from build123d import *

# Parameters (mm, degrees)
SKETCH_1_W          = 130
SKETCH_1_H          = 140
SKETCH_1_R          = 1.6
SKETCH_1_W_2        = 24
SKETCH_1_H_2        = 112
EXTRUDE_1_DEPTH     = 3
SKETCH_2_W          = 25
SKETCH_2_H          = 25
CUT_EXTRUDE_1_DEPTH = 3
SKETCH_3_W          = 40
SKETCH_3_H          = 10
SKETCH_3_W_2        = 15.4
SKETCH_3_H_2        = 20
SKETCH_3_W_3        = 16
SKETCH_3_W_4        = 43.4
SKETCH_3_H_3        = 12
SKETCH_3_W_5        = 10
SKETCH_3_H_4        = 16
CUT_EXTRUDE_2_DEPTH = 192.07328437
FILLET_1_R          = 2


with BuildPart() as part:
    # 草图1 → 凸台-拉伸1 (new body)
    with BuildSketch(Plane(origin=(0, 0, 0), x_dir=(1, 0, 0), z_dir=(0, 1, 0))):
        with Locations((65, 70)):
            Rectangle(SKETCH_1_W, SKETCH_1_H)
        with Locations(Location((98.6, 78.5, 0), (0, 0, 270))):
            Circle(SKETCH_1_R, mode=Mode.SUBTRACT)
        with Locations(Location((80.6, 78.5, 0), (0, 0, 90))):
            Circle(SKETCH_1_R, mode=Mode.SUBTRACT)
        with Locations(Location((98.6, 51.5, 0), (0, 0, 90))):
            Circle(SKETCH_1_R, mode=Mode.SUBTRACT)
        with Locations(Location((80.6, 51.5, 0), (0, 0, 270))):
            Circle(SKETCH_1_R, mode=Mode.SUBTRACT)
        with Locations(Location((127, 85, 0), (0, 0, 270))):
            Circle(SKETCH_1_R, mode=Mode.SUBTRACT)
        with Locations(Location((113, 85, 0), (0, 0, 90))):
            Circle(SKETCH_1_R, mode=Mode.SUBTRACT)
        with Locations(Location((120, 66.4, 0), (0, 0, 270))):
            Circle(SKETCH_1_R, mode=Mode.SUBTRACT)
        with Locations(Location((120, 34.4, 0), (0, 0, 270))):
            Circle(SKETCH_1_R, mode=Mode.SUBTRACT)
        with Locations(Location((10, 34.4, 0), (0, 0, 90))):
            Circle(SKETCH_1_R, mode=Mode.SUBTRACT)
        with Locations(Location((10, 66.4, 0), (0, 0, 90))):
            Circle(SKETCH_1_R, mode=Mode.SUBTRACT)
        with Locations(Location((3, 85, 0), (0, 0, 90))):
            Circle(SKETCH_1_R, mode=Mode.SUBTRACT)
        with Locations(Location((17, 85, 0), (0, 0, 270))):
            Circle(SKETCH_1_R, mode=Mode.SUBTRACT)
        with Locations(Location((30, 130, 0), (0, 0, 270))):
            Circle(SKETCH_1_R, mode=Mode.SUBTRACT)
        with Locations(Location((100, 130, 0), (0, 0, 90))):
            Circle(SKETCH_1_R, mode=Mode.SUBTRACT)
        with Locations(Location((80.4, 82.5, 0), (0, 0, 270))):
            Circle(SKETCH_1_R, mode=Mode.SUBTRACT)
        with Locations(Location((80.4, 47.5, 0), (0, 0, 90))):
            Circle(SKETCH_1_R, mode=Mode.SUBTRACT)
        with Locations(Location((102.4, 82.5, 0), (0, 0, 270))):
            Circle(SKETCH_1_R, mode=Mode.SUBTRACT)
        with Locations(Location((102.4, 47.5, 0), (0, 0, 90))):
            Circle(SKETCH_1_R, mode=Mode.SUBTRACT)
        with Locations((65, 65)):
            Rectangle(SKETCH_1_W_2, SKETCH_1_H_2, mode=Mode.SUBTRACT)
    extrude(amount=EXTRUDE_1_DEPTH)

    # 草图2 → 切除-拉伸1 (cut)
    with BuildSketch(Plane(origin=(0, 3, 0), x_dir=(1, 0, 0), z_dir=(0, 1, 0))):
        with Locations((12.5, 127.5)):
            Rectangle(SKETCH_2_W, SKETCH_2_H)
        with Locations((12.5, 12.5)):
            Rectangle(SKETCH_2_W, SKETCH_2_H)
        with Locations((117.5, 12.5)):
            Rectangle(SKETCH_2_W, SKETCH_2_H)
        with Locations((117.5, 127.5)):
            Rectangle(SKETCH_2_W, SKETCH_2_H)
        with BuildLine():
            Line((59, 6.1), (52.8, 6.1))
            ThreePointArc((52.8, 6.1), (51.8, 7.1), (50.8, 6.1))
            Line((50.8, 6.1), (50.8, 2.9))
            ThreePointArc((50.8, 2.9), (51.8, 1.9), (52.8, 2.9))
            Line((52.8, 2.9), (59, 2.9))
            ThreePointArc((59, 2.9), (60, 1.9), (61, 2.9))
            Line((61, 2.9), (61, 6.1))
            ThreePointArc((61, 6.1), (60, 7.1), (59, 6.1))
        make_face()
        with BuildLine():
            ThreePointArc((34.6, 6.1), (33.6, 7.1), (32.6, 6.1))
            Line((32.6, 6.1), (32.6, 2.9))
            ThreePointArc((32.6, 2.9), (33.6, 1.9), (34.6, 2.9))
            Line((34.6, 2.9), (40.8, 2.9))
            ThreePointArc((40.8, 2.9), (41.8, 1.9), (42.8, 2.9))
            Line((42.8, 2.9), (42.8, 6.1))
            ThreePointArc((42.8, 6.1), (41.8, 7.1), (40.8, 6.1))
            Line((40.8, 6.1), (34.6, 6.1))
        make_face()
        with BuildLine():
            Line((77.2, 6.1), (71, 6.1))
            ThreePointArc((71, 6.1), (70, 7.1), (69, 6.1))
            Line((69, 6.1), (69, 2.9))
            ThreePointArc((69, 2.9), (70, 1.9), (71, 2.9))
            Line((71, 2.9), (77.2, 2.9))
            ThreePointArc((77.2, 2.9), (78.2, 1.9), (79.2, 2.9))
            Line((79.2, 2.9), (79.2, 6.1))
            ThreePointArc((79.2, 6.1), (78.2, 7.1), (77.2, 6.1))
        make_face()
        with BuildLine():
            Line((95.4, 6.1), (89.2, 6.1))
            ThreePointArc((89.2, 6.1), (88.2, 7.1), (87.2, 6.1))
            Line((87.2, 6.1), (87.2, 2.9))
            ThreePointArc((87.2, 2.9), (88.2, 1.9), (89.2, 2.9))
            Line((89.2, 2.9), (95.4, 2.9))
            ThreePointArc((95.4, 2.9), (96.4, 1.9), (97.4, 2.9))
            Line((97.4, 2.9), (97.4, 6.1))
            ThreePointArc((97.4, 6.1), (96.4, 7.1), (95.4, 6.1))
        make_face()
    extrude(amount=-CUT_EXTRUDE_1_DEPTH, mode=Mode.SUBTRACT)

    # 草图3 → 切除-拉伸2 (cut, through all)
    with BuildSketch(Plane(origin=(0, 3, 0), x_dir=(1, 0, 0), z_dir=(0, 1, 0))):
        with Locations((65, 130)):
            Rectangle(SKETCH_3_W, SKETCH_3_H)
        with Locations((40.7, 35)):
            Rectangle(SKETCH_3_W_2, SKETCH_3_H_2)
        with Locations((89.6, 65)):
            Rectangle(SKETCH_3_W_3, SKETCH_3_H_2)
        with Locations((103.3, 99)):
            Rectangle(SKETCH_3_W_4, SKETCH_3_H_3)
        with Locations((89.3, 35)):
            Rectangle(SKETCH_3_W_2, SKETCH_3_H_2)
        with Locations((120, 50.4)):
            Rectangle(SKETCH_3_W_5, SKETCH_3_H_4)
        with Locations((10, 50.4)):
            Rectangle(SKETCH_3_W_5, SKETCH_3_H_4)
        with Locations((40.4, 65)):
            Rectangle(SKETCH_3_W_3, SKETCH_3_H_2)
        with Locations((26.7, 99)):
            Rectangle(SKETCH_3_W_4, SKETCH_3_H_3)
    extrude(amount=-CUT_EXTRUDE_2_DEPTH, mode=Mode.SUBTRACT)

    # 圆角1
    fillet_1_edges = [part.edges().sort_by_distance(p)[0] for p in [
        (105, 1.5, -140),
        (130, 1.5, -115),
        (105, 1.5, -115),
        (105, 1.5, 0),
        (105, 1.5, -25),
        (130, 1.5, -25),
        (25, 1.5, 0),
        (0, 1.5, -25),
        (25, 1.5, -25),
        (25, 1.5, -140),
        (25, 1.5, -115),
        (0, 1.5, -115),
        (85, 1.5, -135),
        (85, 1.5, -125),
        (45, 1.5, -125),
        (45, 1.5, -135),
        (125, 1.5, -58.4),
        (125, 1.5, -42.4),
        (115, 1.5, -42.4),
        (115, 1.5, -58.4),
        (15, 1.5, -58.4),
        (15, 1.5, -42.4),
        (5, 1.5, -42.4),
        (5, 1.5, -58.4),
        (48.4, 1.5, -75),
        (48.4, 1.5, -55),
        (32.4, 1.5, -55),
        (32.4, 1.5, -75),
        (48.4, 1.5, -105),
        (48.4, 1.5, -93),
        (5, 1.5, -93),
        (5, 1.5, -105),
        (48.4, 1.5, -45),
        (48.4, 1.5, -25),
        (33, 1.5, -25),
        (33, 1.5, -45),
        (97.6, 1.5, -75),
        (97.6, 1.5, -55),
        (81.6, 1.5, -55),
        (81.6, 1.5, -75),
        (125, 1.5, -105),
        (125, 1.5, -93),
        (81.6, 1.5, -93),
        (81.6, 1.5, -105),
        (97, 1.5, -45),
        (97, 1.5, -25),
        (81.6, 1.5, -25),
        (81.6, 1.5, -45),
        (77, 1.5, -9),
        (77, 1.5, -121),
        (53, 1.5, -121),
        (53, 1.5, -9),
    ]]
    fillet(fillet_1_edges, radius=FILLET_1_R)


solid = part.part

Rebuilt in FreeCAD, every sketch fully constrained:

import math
import FreeCAD as App
import Part
import Sketcher
Q = App.Units.Quantity


def edges_at(feature, points):
    """Names of the edges that pass closest to the given points."""
    edges = feature.Shape.Edges
    near = lambda p: min(range(len(edges)), key=lambda i: edges[i].distToShape(Part.Vertex(*p))[0])
    return sorted({f"Edge{near(p) + 1}" for p in points})


def add_polygon(sketch, points):
    """Adds a closed chain of lines whose ends are joined by coincident constraints."""
    first, n = sketch.GeometryCount, len(points)
    for a, b in zip(points, points[1:] + points[:1]):
        sketch.addGeometry(Part.LineSegment(App.Vector(*a, 0), App.Vector(*b, 0)), False)
    for i in range(n):
        sketch.addConstraint(Sketcher.Constraint("Coincident", first + i, 2, first + (i + 1) % n, 1))

doc = App.newDocument("Part")
params = doc.addObject("Spreadsheet::Sheet", "Params")
for row, (alias, value) in enumerate([
    ("sketch1_diameter", "3.2 mm"),
    ("sketch1_width", "130 mm"),
    ("sketch1_width2", "24 mm"),
    ("sketch1_height", "140 mm"),
    ("sketch1_height2", "112 mm"),
    ("pad1_length", "3 mm"),
    ("sketch2_radius", "1 mm"),
    ("sketch2_width", "25 mm"),
    ("sketch2_width2", "6.2 mm"),
    ("sketch2_height", "3.2 mm"),
    ("pocket1_length", "3 mm"),
    ("sketch3_width", "40 mm"),
    ("sketch3_width2", "16 mm"),
    ("sketch3_width3", "10 mm"),
    ("sketch3_height", "20 mm"),
    ("sketch3_height2", "12 mm"),
    ("fillet_radius", "2 mm"),
], start=1):
    params.set(f"A{row}", alias)
    params.set(f"B{row}", "=" + value)
    params.setAlias(f"B{row}", alias)

body = doc.addObject("PartDesign::Body", "Body")

sketch1 = body.newObject("Sketcher::SketchObject", "Sketch")
sketch1.AttachmentSupport = (doc.getObject("XZ_Plane"), [""])
sketch1.MapMode = "FlatFace"
add_polygon(sketch1, [(0, -140), (0, 0), (130, 0), (130, -140)])
sketch1.addGeometry(Part.Circle(App.Vector(10, -34.4, 0), App.Vector(0, 0, 1), 1.6), False)
sketch1.addGeometry(Part.Circle(App.Vector(10, -66.4, 0), App.Vector(0, 0, 1), 1.6), False)
sketch1.addGeometry(Part.Circle(App.Vector(120, -34.4, 0), App.Vector(0, 0, 1), 1.6), False)
sketch1.addGeometry(Part.Circle(App.Vector(80.4, -47.5, 0), App.Vector(0, 0, 1), 1.6), False)
sketch1.addGeometry(Part.Circle(App.Vector(80.6, -51.5, 0), App.Vector(0, 0, 1), 1.6), False)
add_polygon(sketch1, [(77, -9), (53, -9), (53, -121), (77, -121)])
sketch1.addGeometry(Part.Circle(App.Vector(102.4, -47.5, 0), App.Vector(0, 0, 1), 1.6), False)
sketch1.addGeometry(Part.Circle(App.Vector(98.6, -51.5, 0), App.Vector(0, 0, 1), 1.6), False)
sketch1.addGeometry(Part.Circle(App.Vector(120, -66.4, 0), App.Vector(0, 0, 1), 1.6), False)
sketch1.addGeometry(Part.Circle(App.Vector(3, -85, 0), App.Vector(0, 0, 1), 1.6), False)
sketch1.addGeometry(Part.Circle(App.Vector(17, -85, 0), App.Vector(0, 0, 1), 1.6), False)
sketch1.addGeometry(Part.Circle(App.Vector(30, -130, 0), App.Vector(0, 0, 1), 1.6), False)
sketch1.addGeometry(Part.Circle(App.Vector(80.6, -78.5, 0), App.Vector(0, 0, 1), 1.6), False)
sketch1.addGeometry(Part.Circle(App.Vector(80.4, -82.5, 0), App.Vector(0, 0, 1), 1.6), False)
sketch1.addGeometry(Part.Circle(App.Vector(98.6, -78.5, 0), App.Vector(0, 0, 1), 1.6), False)
sketch1.addGeometry(Part.Circle(App.Vector(102.4, -82.5, 0), App.Vector(0, 0, 1), 1.6), False)
sketch1.addGeometry(Part.Circle(App.Vector(113, -85, 0), App.Vector(0, 0, 1), 1.6), False)
sketch1.addGeometry(Part.Circle(App.Vector(127, -85, 0), App.Vector(0, 0, 1), 1.6), False)
sketch1.addGeometry(Part.Circle(App.Vector(100, -130, 0), App.Vector(0, 0, 1), 1.6), False)
sketch1.addConstraint(Sketcher.Constraint("Vertical", 0))
sketch1.addConstraint(Sketcher.Constraint("Horizontal", 1))
sketch1.addConstraint(Sketcher.Constraint("Vertical", 2))
sketch1.addConstraint(Sketcher.Constraint("Horizontal", 3))
sketch1.addConstraint(Sketcher.Constraint("Horizontal", 9))
sketch1.addConstraint(Sketcher.Constraint("Vertical", 10))
sketch1.addConstraint(Sketcher.Constraint("Horizontal", 11))
sketch1.addConstraint(Sketcher.Constraint("Vertical", 12))
sketch1.addConstraint(Sketcher.Constraint("Coincident", 0, 2, -1, 1))
sketch1.addConstraint(Sketcher.Constraint("Equal", 4, 5))
sketch1.addConstraint(Sketcher.Constraint("Equal", 5, 6))
sketch1.addConstraint(Sketcher.Constraint("Equal", 6, 7))
sketch1.addConstraint(Sketcher.Constraint("Equal", 7, 8))
sketch1.addConstraint(Sketcher.Constraint("Equal", 8, 13))
sketch1.addConstraint(Sketcher.Constraint("Equal", 13, 14))
sketch1.addConstraint(Sketcher.Constraint("Equal", 14, 15))
sketch1.addConstraint(Sketcher.Constraint("Equal", 15, 16))
sketch1.addConstraint(Sketcher.Constraint("Equal", 16, 17))
sketch1.addConstraint(Sketcher.Constraint("Equal", 17, 18))
sketch1.addConstraint(Sketcher.Constraint("Equal", 18, 19))
sketch1.addConstraint(Sketcher.Constraint("Equal", 19, 20))
sketch1.addConstraint(Sketcher.Constraint("Equal", 20, 21))
sketch1.addConstraint(Sketcher.Constraint("Equal", 21, 22))
sketch1.addConstraint(Sketcher.Constraint("Equal", 22, 23))
sketch1.addConstraint(Sketcher.Constraint("Equal", 23, 24))
sketch1.addConstraint(Sketcher.Constraint("Equal", 24, 25))
sketch1.addConstraint(Sketcher.Constraint("Horizontal", 4, 3, 6, 3))
sketch1.addConstraint(Sketcher.Constraint("Horizontal", 7, 3, 13, 3))
sketch1.addConstraint(Sketcher.Constraint("Horizontal", 8, 3, 14, 3))
sketch1.addConstraint(Sketcher.Constraint("Horizontal", 5, 3, 15, 3))
sketch1.addConstraint(Sketcher.Constraint("Horizontal", 16, 3, 17, 3))
sketch1.addConstraint(Sketcher.Constraint("Horizontal", 19, 3, 21, 3))
sketch1.addConstraint(Sketcher.Constraint("Horizontal", 20, 3, 22, 3))
sketch1.addConstraint(Sketcher.Constraint("Horizontal", 17, 3, 23, 3))
sketch1.addConstraint(Sketcher.Constraint("Horizontal", 23, 3, 24, 3))
sketch1.addConstraint(Sketcher.Constraint("Horizontal", 18, 3, 25, 3))
sketch1.addConstraint(Sketcher.Constraint("Vertical", 4, 3, 5, 3))
sketch1.addConstraint(Sketcher.Constraint("Vertical", 6, 3, 15, 3))
sketch1.addConstraint(Sketcher.Constraint("Vertical", 8, 3, 19, 3))
sketch1.addConstraint(Sketcher.Constraint("Vertical", 7, 3, 20, 3))
sketch1.addConstraint(Sketcher.Constraint("Vertical", 14, 3, 21, 3))
sketch1.addConstraint(Sketcher.Constraint("Vertical", 13, 3, 22, 3))
sketch1.addConstraint(Sketcher.Constraint("Diameter", 4, Q("3.2 mm")))
sketch1.addConstraint(Sketcher.Constraint("DistanceX", 1, 1, 1, 2, Q("130 mm")))
sketch1.addConstraint(Sketcher.Constraint("DistanceX", 9, 2, 9, 1, Q("24 mm")))
sketch1.addConstraint(Sketcher.Constraint("DistanceY", 0, 1, 0, 2, Q("140 mm")))
sketch1.addConstraint(Sketcher.Constraint("DistanceY", 10, 2, 10, 1, Q("112 mm")))
sketch1.addConstraint(Sketcher.Constraint("DistanceX", -1, 1, 4, 3, Q("10 mm")))
sketch1.addConstraint(Sketcher.Constraint("DistanceX", -1, 1, 6, 3, Q("120 mm")))
sketch1.addConstraint(Sketcher.Constraint("DistanceX", -1, 1, 16, 3, Q("3 mm")))
sketch1.addConstraint(Sketcher.Constraint("DistanceY", 16, 3, -1, 1, Q("85 mm")))
sketch1.addConstraint(Sketcher.Constraint("DistanceX", -1, 1, 17, 3, Q("17 mm")))
sketch1.addConstraint(Sketcher.Constraint("DistanceX", -1, 1, 18, 3, Q("30 mm")))
sketch1.addConstraint(Sketcher.Constraint("DistanceY", 18, 3, -1, 1, Q("130 mm")))
sketch1.addConstraint(Sketcher.Constraint("DistanceX", -1, 1, 23, 3, Q("113 mm")))
sketch1.addConstraint(Sketcher.Constraint("DistanceX", -1, 1, 24, 3, Q("127 mm")))
sketch1.addConstraint(Sketcher.Constraint("DistanceX", -1, 1, 25, 3, Q("100 mm")))
sketch1.addConstraint(Sketcher.Constraint("DistanceX", -1, 1, 9, 2, Q("53 mm")))
sketch1.addConstraint(Sketcher.Constraint("DistanceY", 9, 2, -1, 1, Q("9 mm")))
sketch1.addConstraint(Sketcher.Constraint("DistanceY", 5, 3, 4, 3, Q("32 mm")))
sketch1.addConstraint(Sketcher.Constraint("DistanceY", 8, 3, 7, 3, Q("4 mm")))
sketch1.addConstraint(Sketcher.Constraint("DistanceX", 7, 3, 13, 3, Q("22 mm")))
sketch1.addConstraint(Sketcher.Constraint("DistanceX", 8, 3, 14, 3, Q("18 mm")))
sketch1.addConstraint(Sketcher.Constraint("DistanceY", 19, 3, 8, 3, Q("27 mm")))
sketch1.addConstraint(Sketcher.Constraint("DistanceY", 20, 3, 19, 3, Q("4 mm")))
sketch1.addConstraint(Sketcher.Constraint("DistanceY", 4, 3, -1, 1, Q("34.4 mm")))
sketch1.addConstraint(Sketcher.Constraint("DistanceX", -1, 1, 7, 3, Q("80.4 mm")))
sketch1.addConstraint(Sketcher.Constraint("DistanceY", 7, 3, -1, 1, Q("47.5 mm")))
sketch1.addConstraint(Sketcher.Constraint("DistanceX", -1, 1, 8, 3, Q("80.6 mm")))
sketch1.setExpression("Constraints[50]", "Params.sketch1_diameter")
sketch1.setExpression("Constraints[51]", "Params.sketch1_width")
sketch1.setExpression("Constraints[52]", "Params.sketch1_width2")
sketch1.setExpression("Constraints[53]", "Params.sketch1_height")
sketch1.setExpression("Constraints[54]", "Params.sketch1_height2")
pad1 = body.newObject("PartDesign::Pad", "Pad")
pad1.Profile = sketch1
pad1.setExpression("Length", "Params.pad1_length")
pad1.Reversed = True

sketch2 = body.newObject("Sketcher::SketchObject", "Sketch001")
sketch2.AttachmentSupport = (doc.getObject("XZ_Plane"), [""])
sketch2.MapMode = "FlatFace"
sketch2.AttachmentOffset = App.Placement(App.Vector(0, 0, -3), App.Rotation())
add_polygon(sketch2, [(0, -140), (0, -115), (25, -115), (25, -140)])
add_polygon(sketch2, [(0, -25), (0, 0), (25, 0), (25, -25)])
add_polygon(sketch2, [(105, -25), (105, 0), (130, 0), (130, -25)])
add_polygon(sketch2, [(105, -140), (105, -115), (130, -115), (130, -140)])
sketch2.addGeometry(Part.LineSegment(App.Vector(59, -6.1, 0), App.Vector(52.8, -6.1, 0)), False)
sketch2.addGeometry(Part.ArcOfCircle(Part.Circle(App.Vector(51.8, -6.1, 0), App.Vector(0, 0, 1), 1), math.radians(180), math.radians(360)), False)
sketch2.addGeometry(Part.LineSegment(App.Vector(50.8, -6.1, 0), App.Vector(50.8, -2.9, 0)), False)
sketch2.addGeometry(Part.ArcOfCircle(Part.Circle(App.Vector(51.8, -2.9, 0), App.Vector(0, 0, 1), 1), math.radians(0), math.radians(180)), False)
sketch2.addGeometry(Part.LineSegment(App.Vector(52.8, -2.9, 0), App.Vector(59, -2.9, 0)), False)
sketch2.addGeometry(Part.ArcOfCircle(Part.Circle(App.Vector(60, -2.9, 0), App.Vector(0, 0, 1), 1), math.radians(0), math.radians(180)), False)
sketch2.addGeometry(Part.LineSegment(App.Vector(61, -2.9, 0), App.Vector(61, -6.1, 0)), False)
sketch2.addGeometry(Part.ArcOfCircle(Part.Circle(App.Vector(60, -6.1, 0), App.Vector(0, 0, 1), 1), math.radians(180), math.radians(360)), False)
sketch2.addGeometry(Part.ArcOfCircle(Part.Circle(App.Vector(33.6, -6.1, 0), App.Vector(0, 0, 1), 1), math.radians(180), math.radians(360)), False)
sketch2.addGeometry(Part.LineSegment(App.Vector(32.6, -6.1, 0), App.Vector(32.6, -2.9, 0)), False)
sketch2.addGeometry(Part.ArcOfCircle(Part.Circle(App.Vector(33.6, -2.9, 0), App.Vector(0, 0, 1), 1), math.radians(0), math.radians(180)), False)
sketch2.addGeometry(Part.LineSegment(App.Vector(34.6, -2.9, 0), App.Vector(40.8, -2.9, 0)), False)
sketch2.addGeometry(Part.ArcOfCircle(Part.Circle(App.Vector(41.8, -2.9, 0), App.Vector(0, 0, 1), 1), math.radians(0), math.radians(180)), False)
sketch2.addGeometry(Part.LineSegment(App.Vector(42.8, -2.9, 0), App.Vector(42.8, -6.1, 0)), False)
sketch2.addGeometry(Part.ArcOfCircle(Part.Circle(App.Vector(41.8, -6.1, 0), App.Vector(0, 0, 1), 1), math.radians(180), math.radians(360)), False)
sketch2.addGeometry(Part.LineSegment(App.Vector(40.8, -6.1, 0), App.Vector(34.6, -6.1, 0)), False)
sketch2.addGeometry(Part.LineSegment(App.Vector(77.2, -6.1, 0), App.Vector(71, -6.1, 0)), False)
sketch2.addGeometry(Part.ArcOfCircle(Part.Circle(App.Vector(70, -6.1, 0), App.Vector(0, 0, 1), 1), math.radians(180), math.radians(360)), False)
sketch2.addGeometry(Part.LineSegment(App.Vector(69, -6.1, 0), App.Vector(69, -2.9, 0)), False)
sketch2.addGeometry(Part.ArcOfCircle(Part.Circle(App.Vector(70, -2.9, 0), App.Vector(0, 0, 1), 1), math.radians(0), math.radians(180)), False)
sketch2.addGeometry(Part.LineSegment(App.Vector(71, -2.9, 0), App.Vector(77.2, -2.9, 0)), False)
sketch2.addGeometry(Part.ArcOfCircle(Part.Circle(App.Vector(78.2, -2.9, 0), App.Vector(0, 0, 1), 1), math.radians(0), math.radians(180)), False)
sketch2.addGeometry(Part.LineSegment(App.Vector(79.2, -2.9, 0), App.Vector(79.2, -6.1, 0)), False)
sketch2.addGeometry(Part.ArcOfCircle(Part.Circle(App.Vector(78.2, -6.1, 0), App.Vector(0, 0, 1), 1), math.radians(180), math.radians(360)), False)
sketch2.addGeometry(Part.LineSegment(App.Vector(95.4, -6.1, 0), App.Vector(89.2, -6.1, 0)), False)
sketch2.addGeometry(Part.ArcOfCircle(Part.Circle(App.Vector(88.2, -6.1, 0), App.Vector(0, 0, 1), 1), math.radians(180), math.radians(360)), False)
sketch2.addGeometry(Part.LineSegment(App.Vector(87.2, -6.1, 0), App.Vector(87.2, -2.9, 0)), False)
sketch2.addGeometry(Part.ArcOfCircle(Part.Circle(App.Vector(88.2, -2.9, 0), App.Vector(0, 0, 1), 1), math.radians(0), math.radians(180)), False)
sketch2.addGeometry(Part.LineSegment(App.Vector(89.2, -2.9, 0), App.Vector(95.4, -2.9, 0)), False)
sketch2.addGeometry(Part.ArcOfCircle(Part.Circle(App.Vector(96.4, -2.9, 0), App.Vector(0, 0, 1), 1), math.radians(0), math.radians(180)), False)
sketch2.addGeometry(Part.LineSegment(App.Vector(97.4, -2.9, 0), App.Vector(97.4, -6.1, 0)), False)
sketch2.addGeometry(Part.ArcOfCircle(Part.Circle(App.Vector(96.4, -6.1, 0), App.Vector(0, 0, 1), 1), math.radians(180), math.radians(360)), False)
sketch2.addConstraint(Sketcher.Constraint("Coincident", 16, 2, 17, 2))
sketch2.addConstraint(Sketcher.Constraint("Tangent", 17, 1, 18, 1))
sketch2.addConstraint(Sketcher.Constraint("Tangent", 18, 2, 19, 2))
sketch2.addConstraint(Sketcher.Constraint("Coincident", 19, 1, 20, 1))
sketch2.addConstraint(Sketcher.Constraint("Coincident", 20, 2, 21, 2))
sketch2.addConstraint(Sketcher.Constraint("Tangent", 21, 1, 22, 1))
sketch2.addConstraint(Sketcher.Constraint("Tangent", 22, 2, 23, 2))
sketch2.addConstraint(Sketcher.Constraint("Coincident", 23, 1, 16, 1))
sketch2.addConstraint(Sketcher.Constraint("Tangent", 24, 1, 25, 1))
sketch2.addConstraint(Sketcher.Constraint("Tangent", 25, 2, 26, 2))
sketch2.addConstraint(Sketcher.Constraint("Coincident", 26, 1, 27, 1))
sketch2.addConstraint(Sketcher.Constraint("Coincident", 27, 2, 28, 2))
sketch2.addConstraint(Sketcher.Constraint("Tangent", 28, 1, 29, 1))
sketch2.addConstraint(Sketcher.Constraint("Tangent", 29, 2, 30, 2))
sketch2.addConstraint(Sketcher.Constraint("Coincident", 30, 1, 31, 1))
sketch2.addConstraint(Sketcher.Constraint("Coincident", 31, 2, 24, 2))
sketch2.addConstraint(Sketcher.Constraint("Coincident", 32, 2, 33, 2))
sketch2.addConstraint(Sketcher.Constraint("Tangent", 33, 1, 34, 1))
sketch2.addConstraint(Sketcher.Constraint("Tangent", 34, 2, 35, 2))
sketch2.addConstraint(Sketcher.Constraint("Coincident", 35, 1, 36, 1))
sketch2.addConstraint(Sketcher.Constraint("Coincident", 36, 2, 37, 2))
sketch2.addConstraint(Sketcher.Constraint("Tangent", 37, 1, 38, 1))
sketch2.addConstraint(Sketcher.Constraint("Tangent", 38, 2, 39, 2))
sketch2.addConstraint(Sketcher.Constraint("Coincident", 39, 1, 32, 1))
sketch2.addConstraint(Sketcher.Constraint("Coincident", 40, 2, 41, 2))
sketch2.addConstraint(Sketcher.Constraint("Tangent", 41, 1, 42, 1))
sketch2.addConstraint(Sketcher.Constraint("Tangent", 42, 2, 43, 2))
sketch2.addConstraint(Sketcher.Constraint("Coincident", 43, 1, 44, 1))
sketch2.addConstraint(Sketcher.Constraint("Coincident", 44, 2, 45, 2))
sketch2.addConstraint(Sketcher.Constraint("Tangent", 45, 1, 46, 1))
sketch2.addConstraint(Sketcher.Constraint("Tangent", 46, 2, 47, 2))
sketch2.addConstraint(Sketcher.Constraint("Coincident", 47, 1, 40, 1))
sketch2.addConstraint(Sketcher.Constraint("Vertical", 0))
sketch2.addConstraint(Sketcher.Constraint("Horizontal", 1))
sketch2.addConstraint(Sketcher.Constraint("Vertical", 2))
sketch2.addConstraint(Sketcher.Constraint("Horizontal", 3))
sketch2.addConstraint(Sketcher.Constraint("Vertical", 4))
sketch2.addConstraint(Sketcher.Constraint("Horizontal", 5))
sketch2.addConstraint(Sketcher.Constraint("Vertical", 6))
sketch2.addConstraint(Sketcher.Constraint("Horizontal", 7))
sketch2.addConstraint(Sketcher.Constraint("Vertical", 8))
sketch2.addConstraint(Sketcher.Constraint("Horizontal", 9))
sketch2.addConstraint(Sketcher.Constraint("Vertical", 10))
sketch2.addConstraint(Sketcher.Constraint("Horizontal", 11))
sketch2.addConstraint(Sketcher.Constraint("Vertical", 12))
sketch2.addConstraint(Sketcher.Constraint("Horizontal", 13))
sketch2.addConstraint(Sketcher.Constraint("Vertical", 14))
sketch2.addConstraint(Sketcher.Constraint("Horizontal", 15))
sketch2.addConstraint(Sketcher.Constraint("Horizontal", 16))
sketch2.addConstraint(Sketcher.Constraint("Vertical", 18))
sketch2.addConstraint(Sketcher.Constraint("Horizontal", 20))
sketch2.addConstraint(Sketcher.Constraint("Vertical", 22))
sketch2.addConstraint(Sketcher.Constraint("Vertical", 25))
sketch2.addConstraint(Sketcher.Constraint("Horizontal", 27))
sketch2.addConstraint(Sketcher.Constraint("Vertical", 29))
sketch2.addConstraint(Sketcher.Constraint("Horizontal", 31))
sketch2.addConstraint(Sketcher.Constraint("Horizontal", 32))
sketch2.addConstraint(Sketcher.Constraint("Vertical", 34))
sketch2.addConstraint(Sketcher.Constraint("Horizontal", 36))
sketch2.addConstraint(Sketcher.Constraint("Vertical", 38))
sketch2.addConstraint(Sketcher.Constraint("Horizontal", 40))
sketch2.addConstraint(Sketcher.Constraint("Vertical", 42))
sketch2.addConstraint(Sketcher.Constraint("Horizontal", 44))
sketch2.addConstraint(Sketcher.Constraint("Vertical", 46))
sketch2.addConstraint(Sketcher.Constraint("Coincident", 4, 2, -1, 1))
sketch2.addConstraint(Sketcher.Constraint("Equal", 17, 19))
sketch2.addConstraint(Sketcher.Constraint("Equal", 19, 21))
sketch2.addConstraint(Sketcher.Constraint("Equal", 21, 23))
sketch2.addConstraint(Sketcher.Constraint("Equal", 23, 24))
sketch2.addConstraint(Sketcher.Constraint("Equal", 24, 26))
sketch2.addConstraint(Sketcher.Constraint("Equal", 26, 28))
sketch2.addConstraint(Sketcher.Constraint("Equal", 28, 30))
sketch2.addConstraint(Sketcher.Constraint("Equal", 30, 33))
sketch2.addConstraint(Sketcher.Constraint("Equal", 33, 35))
sketch2.addConstraint(Sketcher.Constraint("Equal", 35, 37))
sketch2.addConstraint(Sketcher.Constraint("Equal", 37, 39))
sketch2.addConstraint(Sketcher.Constraint("Equal", 39, 41))
sketch2.addConstraint(Sketcher.Constraint("Equal", 41, 43))
sketch2.addConstraint(Sketcher.Constraint("Equal", 43, 45))
sketch2.addConstraint(Sketcher.Constraint("Equal", 45, 47))
sketch2.addConstraint(Sketcher.Constraint("PointOnObject", 0, 2, -2))
sketch2.addConstraint(Sketcher.Constraint("PointOnObject", 8, 2, -1))
sketch2.addConstraint(Sketcher.Constraint("Horizontal", 19, 3, 21, 3))
sketch2.addConstraint(Sketcher.Constraint("Horizontal", 17, 3, 23, 3))
sketch2.addConstraint(Sketcher.Constraint("Horizontal", 23, 3, 24, 3))
sketch2.addConstraint(Sketcher.Constraint("Horizontal", 21, 3, 26, 3))
sketch2.addConstraint(Sketcher.Constraint("Horizontal", 26, 3, 28, 3))
sketch2.addConstraint(Sketcher.Constraint("Horizontal", 24, 3, 30, 3))
sketch2.addConstraint(Sketcher.Constraint("Horizontal", 30, 3, 33, 3))
sketch2.addConstraint(Sketcher.Constraint("Horizontal", 28, 3, 35, 3))
sketch2.addConstraint(Sketcher.Constraint("Horizontal", 35, 3, 37, 3))
sketch2.addConstraint(Sketcher.Constraint("Horizontal", 33, 3, 39, 3))
sketch2.addConstraint(Sketcher.Constraint("Horizontal", 39, 3, 41, 3))
sketch2.addConstraint(Sketcher.Constraint("Horizontal", 37, 3, 43, 3))
sketch2.addConstraint(Sketcher.Constraint("Horizontal", 43, 3, 45, 3))
sketch2.addConstraint(Sketcher.Constraint("Horizontal", 41, 3, 47, 3))
sketch2.addConstraint(Sketcher.Constraint("Horizontal", 7, 2, 10, 2))
sketch2.addConstraint(Sketcher.Constraint("Horizontal", 1, 2, 12, 2))
sketch2.addConstraint(Sketcher.Constraint("Horizontal", 3, 2, 14, 2))
sketch2.addConstraint(Sketcher.Constraint("Horizontal", 47, 3, 16, 2))
sketch2.addConstraint(Sketcher.Constraint("Horizontal", 18, 2, 19, 1))
sketch2.addConstraint(Sketcher.Constraint("Horizontal", 25, 2, 26, 1))
sketch2.addConstraint(Sketcher.Constraint("Horizontal", 29, 2, 30, 1))
sketch2.addConstraint(Sketcher.Constraint("Horizontal", 31, 2, 32, 2))
sketch2.addConstraint(Sketcher.Constraint("Horizontal", 34, 2, 35, 1))
sketch2.addConstraint(Sketcher.Constraint("Horizontal", 39, 1, 40, 2))
sketch2.addConstraint(Sketcher.Constraint("Horizontal", 42, 2, 43, 1))
sketch2.addConstraint(Sketcher.Constraint("Vertical", 2, 2, 5, 2))
sketch2.addConstraint(Sketcher.Constraint("Vertical", 11, 2, 12, 2))
sketch2.addConstraint(Sketcher.Constraint("Vertical", 10, 2, 13, 2))
sketch2.addConstraint(Sketcher.Constraint("Equal", 7, 9))
sketch2.addConstraint(Sketcher.Constraint("Equal", 20, 27))
sketch2.addConstraint(Sketcher.Constraint("Equal", 31, 32))
sketch2.addConstraint(Sketcher.Constraint("Equal", 36, 40))
sketch2.addConstraint(Sketcher.Constraint("Equal", 15, 0))
sketch2.addConstraint(Sketcher.Constraint("Equal", 2, 4))
sketch2.addConstraint(Sketcher.Constraint("Radius", 17, Q("1 mm")))
sketch2.addConstraint(Sketcher.Constraint("DistanceX", 1, 1, 1, 2, Q("25 mm")))
sketch2.addConstraint(Sketcher.Constraint("DistanceX", 16, 2, 16, 1, Q("6.2 mm")))
sketch2.addConstraint(Sketcher.Constraint("DistanceY", 18, 1, 18, 2, Q("3.2 mm")))
sketch2.addConstraint(Sketcher.Constraint("DistanceX", -1, 1, 21, 3, Q("60 mm")))
sketch2.addConstraint(Sketcher.Constraint("DistanceX", -1, 1, 33, 3, Q("70 mm")))
sketch2.addConstraint(Sketcher.Constraint("DistanceY", 0, 2, -1, 1, Q("115 mm")))
sketch2.addConstraint(Sketcher.Constraint("DistanceX", -1, 1, 8, 2, Q("105 mm")))
sketch2.addConstraint(Sketcher.Constraint("DistanceY", 17, 3, -1, 1, Q("6.1 mm")))
sketch2.addConstraint(Sketcher.Constraint("DistanceX", -1, 1, 24, 3, Q("33.6 mm")))
sketch2.addConstraint(Sketcher.Constraint("DistanceX", -1, 1, 41, 3, Q("88.2 mm")))
sketch2.setExpression("Constraints[132]", "Params.sketch2_radius")
sketch2.setExpression("Constraints[133]", "Params.sketch2_width")
sketch2.setExpression("Constraints[134]", "Params.sketch2_width2")
sketch2.setExpression("Constraints[135]", "Params.sketch2_height")
pocket1 = body.newObject("PartDesign::Pocket", "Pocket")
pocket1.Profile = sketch2
pocket1.setExpression("Length", "Params.pocket1_length")
pocket1.Reversed = True

sketch3 = body.newObject("Sketcher::SketchObject", "Sketch002")
sketch3.AttachmentSupport = (doc.getObject("XZ_Plane"), [""])
sketch3.MapMode = "FlatFace"
sketch3.AttachmentOffset = App.Placement(App.Vector(0, 0, -3), App.Rotation())
add_polygon(sketch3, [(45, -135), (45, -125), (85, -125), (85, -135)])
add_polygon(sketch3, [(33, -45), (33, -25), (48, -25), (48, -45)])
add_polygon(sketch3, [(82, -75), (82, -55), (98, -55), (98, -75)])
add_polygon(sketch3, [(82, -105), (82, -93), (125, -93), (125, -105)])
add_polygon(sketch3, [(82, -45), (82, -25), (97, -25), (97, -45)])
add_polygon(sketch3, [(115, -58), (115, -42), (125, -42), (125, -58)])
add_polygon(sketch3, [(5, -58), (5, -42), (15, -42), (15, -58)])
add_polygon(sketch3, [(32, -75), (32, -55), (48, -55), (48, -75)])
add_polygon(sketch3, [(5, -105), (5, -93), (48, -93), (48, -105)])
sketch3.addConstraint(Sketcher.Constraint("Vertical", 0))
sketch3.addConstraint(Sketcher.Constraint("Horizontal", 1))
sketch3.addConstraint(Sketcher.Constraint("Vertical", 2))
sketch3.addConstraint(Sketcher.Constraint("Horizontal", 3))
sketch3.addConstraint(Sketcher.Constraint("Vertical", 4))
sketch3.addConstraint(Sketcher.Constraint("Horizontal", 5))
sketch3.addConstraint(Sketcher.Constraint("Vertical", 6))
sketch3.addConstraint(Sketcher.Constraint("Horizontal", 7))
sketch3.addConstraint(Sketcher.Constraint("Vertical", 8))
sketch3.addConstraint(Sketcher.Constraint("Horizontal", 9))
sketch3.addConstraint(Sketcher.Constraint("Vertical", 10))
sketch3.addConstraint(Sketcher.Constraint("Horizontal", 11))
sketch3.addConstraint(Sketcher.Constraint("Vertical", 12))
sketch3.addConstraint(Sketcher.Constraint("Horizontal", 13))
sketch3.addConstraint(Sketcher.Constraint("Vertical", 14))
sketch3.addConstraint(Sketcher.Constraint("Horizontal", 15))
sketch3.addConstraint(Sketcher.Constraint("Vertical", 16))
sketch3.addConstraint(Sketcher.Constraint("Horizontal", 17))
sketch3.addConstraint(Sketcher.Constraint("Vertical", 18))
sketch3.addConstraint(Sketcher.Constraint("Horizontal", 19))
sketch3.addConstraint(Sketcher.Constraint("Vertical", 20))
sketch3.addConstraint(Sketcher.Constraint("Horizontal", 21))
sketch3.addConstraint(Sketcher.Constraint("Vertical", 22))
sketch3.addConstraint(Sketcher.Constraint("Horizontal", 23))
sketch3.addConstraint(Sketcher.Constraint("Vertical", 24))
sketch3.addConstraint(Sketcher.Constraint("Horizontal", 25))
sketch3.addConstraint(Sketcher.Constraint("Vertical", 26))
sketch3.addConstraint(Sketcher.Constraint("Horizontal", 27))
sketch3.addConstraint(Sketcher.Constraint("Vertical", 28))
sketch3.addConstraint(Sketcher.Constraint("Horizontal", 29))
sketch3.addConstraint(Sketcher.Constraint("Vertical", 30))
sketch3.addConstraint(Sketcher.Constraint("Horizontal", 31))
sketch3.addConstraint(Sketcher.Constraint("Vertical", 32))
sketch3.addConstraint(Sketcher.Constraint("Horizontal", 33))
sketch3.addConstraint(Sketcher.Constraint("Vertical", 34))
sketch3.addConstraint(Sketcher.Constraint("Horizontal", 35))
sketch3.addConstraint(Sketcher.Constraint("Horizontal", 5, 2, 16, 2))
sketch3.addConstraint(Sketcher.Constraint("Horizontal", 7, 2, 18, 2))
sketch3.addConstraint(Sketcher.Constraint("Horizontal", 21, 2, 24, 2))
sketch3.addConstraint(Sketcher.Constraint("Horizontal", 23, 2, 26, 2))
sketch3.addConstraint(Sketcher.Constraint("Horizontal", 9, 2, 28, 2))
sketch3.addConstraint(Sketcher.Constraint("Horizontal", 11, 2, 30, 2))
sketch3.addConstraint(Sketcher.Constraint("Horizontal", 13, 2, 32, 2))
sketch3.addConstraint(Sketcher.Constraint("Horizontal", 15, 2, 34, 2))
sketch3.addConstraint(Sketcher.Constraint("Vertical", 11, 2, 12, 2))
sketch3.addConstraint(Sketcher.Constraint("Vertical", 15, 2, 16, 2))
sketch3.addConstraint(Sketcher.Constraint("Vertical", 14, 2, 21, 2))
sketch3.addConstraint(Sketcher.Constraint("Vertical", 6, 2, 29, 2))
sketch3.addConstraint(Sketcher.Constraint("Vertical", 27, 2, 32, 2))
sketch3.addConstraint(Sketcher.Constraint("Vertical", 30, 2, 33, 2))
sketch3.addConstraint(Sketcher.Constraint("Equal", 7, 17))
sketch3.addConstraint(Sketcher.Constraint("Equal", 23, 25))
sketch3.addConstraint(Sketcher.Constraint("Equal", 11, 29))
sketch3.addConstraint(Sketcher.Constraint("Equal", 15, 33))
sketch3.addConstraint(Sketcher.Constraint("Equal", 27, 0))
sketch3.addConstraint(Sketcher.Constraint("Equal", 6, 8))
sketch3.addConstraint(Sketcher.Constraint("Equal", 31, 20))
sketch3.addConstraint(Sketcher.Constraint("DistanceX", 1, 1, 1, 2, Q("40 mm")))
sketch3.addConstraint(Sketcher.Constraint("DistanceX", 9, 1, 9, 2, Q("16 mm")))
sketch3.addConstraint(Sketcher.Constraint("DistanceX", 21, 1, 21, 2, Q("10 mm")))
sketch3.addConstraint(Sketcher.Constraint("DistanceY", 4, 1, 4, 2, Q("20 mm")))
sketch3.addConstraint(Sketcher.Constraint("DistanceY", 12, 1, 12, 2, Q("12 mm")))
sketch3.addConstraint(Sketcher.Constraint("DistanceX", 5, 1, 5, 2, Q("15.4 mm")))
sketch3.addConstraint(Sketcher.Constraint("DistanceX", 13, 1, 13, 2, Q("43.4 mm")))
sketch3.addConstraint(Sketcher.Constraint("DistanceX", -1, 1, 0, 2, Q("45 mm")))
sketch3.addConstraint(Sketcher.Constraint("DistanceY", 0, 2, -1, 1, Q("125 mm")))
sketch3.addConstraint(Sketcher.Constraint("DistanceX", -1, 1, 4, 2, Q("33 mm")))
sketch3.addConstraint(Sketcher.Constraint("DistanceY", 4, 2, -1, 1, Q("25 mm")))
sketch3.addConstraint(Sketcher.Constraint("DistanceY", 8, 2, -1, 1, Q("55 mm")))
sketch3.addConstraint(Sketcher.Constraint("DistanceY", 12, 2, -1, 1, Q("93 mm")))
sketch3.addConstraint(Sketcher.Constraint("DistanceX", -1, 1, 13, 2, Q("125 mm")))
sketch3.addConstraint(Sketcher.Constraint("DistanceY", 20, 2, -1, 1, Q("42.4 mm")))
sketch3.setExpression("Constraints[93]", "Params.sketch3_width")
sketch3.setExpression("Constraints[94]", "Params.sketch3_width2")
sketch3.setExpression("Constraints[95]", "Params.sketch3_width3")
sketch3.setExpression("Constraints[96]", "Params.sketch3_height")
sketch3.setExpression("Constraints[97]", "Params.sketch3_height2")
pocket2 = body.newObject("PartDesign::Pocket", "Pocket001")
pocket2.Profile = sketch3
pocket2.Type = "ThroughAll"
pocket2.Reversed = True
doc.recompute()

fillet = body.newObject("PartDesign::Fillet", "Fillet")
fillet.Base = (pocket2, edges_at(pocket2, [
    (105, 1.5, -140),
    (130, 1.5, -115),
    (105, 1.5, -115),
    (105, 1.5, 0),
    (105, 1.5, -25),
    (130, 1.5, -25),
    (25, 1.5, 0),
    (0, 1.5, -25),
    (25, 1.5, -25),
    (25, 1.5, -140),
    (25, 1.5, -115),
    (0, 1.5, -115),
    (85, 1.5, -135),
    (85, 1.5, -125),
    (45, 1.5, -125),
    (45, 1.5, -135),
    (125, 1.5, -58.4),
    (125, 1.5, -42.4),
    (115, 1.5, -42.4),
    (115, 1.5, -58.4),
    (15, 1.5, -58.4),
    (15, 1.5, -42.4),
    (5, 1.5, -42.4),
    (5, 1.5, -58.4),
    (48.4, 1.5, -75),
    (48.4, 1.5, -55),
    (32.4, 1.5, -55),
    (32.4, 1.5, -75),
    (48.4, 1.5, -105),
    (48.4, 1.5, -93),
    (5, 1.5, -93),
    (5, 1.5, -105),
    (48.4, 1.5, -45),
    (48.4, 1.5, -25),
    (33, 1.5, -25),
    (33, 1.5, -45),
    (97.6, 1.5, -75),
    (97.6, 1.5, -55),
    (81.6, 1.5, -55),
    (81.6, 1.5, -75),
    (125, 1.5, -105),
    (125, 1.5, -93),
    (81.6, 1.5, -93),
    (81.6, 1.5, -105),
    (97, 1.5, -45),
    (97, 1.5, -25),
    (81.6, 1.5, -25),
    (81.6, 1.5, -45),
    (77, 1.5, -9),
    (77, 1.5, -121),
    (53, 1.5, -121),
    (53, 1.5, -9),
]))
fillet.setExpression("Radius", "Params.fillet_radius")

doc.recompute()
